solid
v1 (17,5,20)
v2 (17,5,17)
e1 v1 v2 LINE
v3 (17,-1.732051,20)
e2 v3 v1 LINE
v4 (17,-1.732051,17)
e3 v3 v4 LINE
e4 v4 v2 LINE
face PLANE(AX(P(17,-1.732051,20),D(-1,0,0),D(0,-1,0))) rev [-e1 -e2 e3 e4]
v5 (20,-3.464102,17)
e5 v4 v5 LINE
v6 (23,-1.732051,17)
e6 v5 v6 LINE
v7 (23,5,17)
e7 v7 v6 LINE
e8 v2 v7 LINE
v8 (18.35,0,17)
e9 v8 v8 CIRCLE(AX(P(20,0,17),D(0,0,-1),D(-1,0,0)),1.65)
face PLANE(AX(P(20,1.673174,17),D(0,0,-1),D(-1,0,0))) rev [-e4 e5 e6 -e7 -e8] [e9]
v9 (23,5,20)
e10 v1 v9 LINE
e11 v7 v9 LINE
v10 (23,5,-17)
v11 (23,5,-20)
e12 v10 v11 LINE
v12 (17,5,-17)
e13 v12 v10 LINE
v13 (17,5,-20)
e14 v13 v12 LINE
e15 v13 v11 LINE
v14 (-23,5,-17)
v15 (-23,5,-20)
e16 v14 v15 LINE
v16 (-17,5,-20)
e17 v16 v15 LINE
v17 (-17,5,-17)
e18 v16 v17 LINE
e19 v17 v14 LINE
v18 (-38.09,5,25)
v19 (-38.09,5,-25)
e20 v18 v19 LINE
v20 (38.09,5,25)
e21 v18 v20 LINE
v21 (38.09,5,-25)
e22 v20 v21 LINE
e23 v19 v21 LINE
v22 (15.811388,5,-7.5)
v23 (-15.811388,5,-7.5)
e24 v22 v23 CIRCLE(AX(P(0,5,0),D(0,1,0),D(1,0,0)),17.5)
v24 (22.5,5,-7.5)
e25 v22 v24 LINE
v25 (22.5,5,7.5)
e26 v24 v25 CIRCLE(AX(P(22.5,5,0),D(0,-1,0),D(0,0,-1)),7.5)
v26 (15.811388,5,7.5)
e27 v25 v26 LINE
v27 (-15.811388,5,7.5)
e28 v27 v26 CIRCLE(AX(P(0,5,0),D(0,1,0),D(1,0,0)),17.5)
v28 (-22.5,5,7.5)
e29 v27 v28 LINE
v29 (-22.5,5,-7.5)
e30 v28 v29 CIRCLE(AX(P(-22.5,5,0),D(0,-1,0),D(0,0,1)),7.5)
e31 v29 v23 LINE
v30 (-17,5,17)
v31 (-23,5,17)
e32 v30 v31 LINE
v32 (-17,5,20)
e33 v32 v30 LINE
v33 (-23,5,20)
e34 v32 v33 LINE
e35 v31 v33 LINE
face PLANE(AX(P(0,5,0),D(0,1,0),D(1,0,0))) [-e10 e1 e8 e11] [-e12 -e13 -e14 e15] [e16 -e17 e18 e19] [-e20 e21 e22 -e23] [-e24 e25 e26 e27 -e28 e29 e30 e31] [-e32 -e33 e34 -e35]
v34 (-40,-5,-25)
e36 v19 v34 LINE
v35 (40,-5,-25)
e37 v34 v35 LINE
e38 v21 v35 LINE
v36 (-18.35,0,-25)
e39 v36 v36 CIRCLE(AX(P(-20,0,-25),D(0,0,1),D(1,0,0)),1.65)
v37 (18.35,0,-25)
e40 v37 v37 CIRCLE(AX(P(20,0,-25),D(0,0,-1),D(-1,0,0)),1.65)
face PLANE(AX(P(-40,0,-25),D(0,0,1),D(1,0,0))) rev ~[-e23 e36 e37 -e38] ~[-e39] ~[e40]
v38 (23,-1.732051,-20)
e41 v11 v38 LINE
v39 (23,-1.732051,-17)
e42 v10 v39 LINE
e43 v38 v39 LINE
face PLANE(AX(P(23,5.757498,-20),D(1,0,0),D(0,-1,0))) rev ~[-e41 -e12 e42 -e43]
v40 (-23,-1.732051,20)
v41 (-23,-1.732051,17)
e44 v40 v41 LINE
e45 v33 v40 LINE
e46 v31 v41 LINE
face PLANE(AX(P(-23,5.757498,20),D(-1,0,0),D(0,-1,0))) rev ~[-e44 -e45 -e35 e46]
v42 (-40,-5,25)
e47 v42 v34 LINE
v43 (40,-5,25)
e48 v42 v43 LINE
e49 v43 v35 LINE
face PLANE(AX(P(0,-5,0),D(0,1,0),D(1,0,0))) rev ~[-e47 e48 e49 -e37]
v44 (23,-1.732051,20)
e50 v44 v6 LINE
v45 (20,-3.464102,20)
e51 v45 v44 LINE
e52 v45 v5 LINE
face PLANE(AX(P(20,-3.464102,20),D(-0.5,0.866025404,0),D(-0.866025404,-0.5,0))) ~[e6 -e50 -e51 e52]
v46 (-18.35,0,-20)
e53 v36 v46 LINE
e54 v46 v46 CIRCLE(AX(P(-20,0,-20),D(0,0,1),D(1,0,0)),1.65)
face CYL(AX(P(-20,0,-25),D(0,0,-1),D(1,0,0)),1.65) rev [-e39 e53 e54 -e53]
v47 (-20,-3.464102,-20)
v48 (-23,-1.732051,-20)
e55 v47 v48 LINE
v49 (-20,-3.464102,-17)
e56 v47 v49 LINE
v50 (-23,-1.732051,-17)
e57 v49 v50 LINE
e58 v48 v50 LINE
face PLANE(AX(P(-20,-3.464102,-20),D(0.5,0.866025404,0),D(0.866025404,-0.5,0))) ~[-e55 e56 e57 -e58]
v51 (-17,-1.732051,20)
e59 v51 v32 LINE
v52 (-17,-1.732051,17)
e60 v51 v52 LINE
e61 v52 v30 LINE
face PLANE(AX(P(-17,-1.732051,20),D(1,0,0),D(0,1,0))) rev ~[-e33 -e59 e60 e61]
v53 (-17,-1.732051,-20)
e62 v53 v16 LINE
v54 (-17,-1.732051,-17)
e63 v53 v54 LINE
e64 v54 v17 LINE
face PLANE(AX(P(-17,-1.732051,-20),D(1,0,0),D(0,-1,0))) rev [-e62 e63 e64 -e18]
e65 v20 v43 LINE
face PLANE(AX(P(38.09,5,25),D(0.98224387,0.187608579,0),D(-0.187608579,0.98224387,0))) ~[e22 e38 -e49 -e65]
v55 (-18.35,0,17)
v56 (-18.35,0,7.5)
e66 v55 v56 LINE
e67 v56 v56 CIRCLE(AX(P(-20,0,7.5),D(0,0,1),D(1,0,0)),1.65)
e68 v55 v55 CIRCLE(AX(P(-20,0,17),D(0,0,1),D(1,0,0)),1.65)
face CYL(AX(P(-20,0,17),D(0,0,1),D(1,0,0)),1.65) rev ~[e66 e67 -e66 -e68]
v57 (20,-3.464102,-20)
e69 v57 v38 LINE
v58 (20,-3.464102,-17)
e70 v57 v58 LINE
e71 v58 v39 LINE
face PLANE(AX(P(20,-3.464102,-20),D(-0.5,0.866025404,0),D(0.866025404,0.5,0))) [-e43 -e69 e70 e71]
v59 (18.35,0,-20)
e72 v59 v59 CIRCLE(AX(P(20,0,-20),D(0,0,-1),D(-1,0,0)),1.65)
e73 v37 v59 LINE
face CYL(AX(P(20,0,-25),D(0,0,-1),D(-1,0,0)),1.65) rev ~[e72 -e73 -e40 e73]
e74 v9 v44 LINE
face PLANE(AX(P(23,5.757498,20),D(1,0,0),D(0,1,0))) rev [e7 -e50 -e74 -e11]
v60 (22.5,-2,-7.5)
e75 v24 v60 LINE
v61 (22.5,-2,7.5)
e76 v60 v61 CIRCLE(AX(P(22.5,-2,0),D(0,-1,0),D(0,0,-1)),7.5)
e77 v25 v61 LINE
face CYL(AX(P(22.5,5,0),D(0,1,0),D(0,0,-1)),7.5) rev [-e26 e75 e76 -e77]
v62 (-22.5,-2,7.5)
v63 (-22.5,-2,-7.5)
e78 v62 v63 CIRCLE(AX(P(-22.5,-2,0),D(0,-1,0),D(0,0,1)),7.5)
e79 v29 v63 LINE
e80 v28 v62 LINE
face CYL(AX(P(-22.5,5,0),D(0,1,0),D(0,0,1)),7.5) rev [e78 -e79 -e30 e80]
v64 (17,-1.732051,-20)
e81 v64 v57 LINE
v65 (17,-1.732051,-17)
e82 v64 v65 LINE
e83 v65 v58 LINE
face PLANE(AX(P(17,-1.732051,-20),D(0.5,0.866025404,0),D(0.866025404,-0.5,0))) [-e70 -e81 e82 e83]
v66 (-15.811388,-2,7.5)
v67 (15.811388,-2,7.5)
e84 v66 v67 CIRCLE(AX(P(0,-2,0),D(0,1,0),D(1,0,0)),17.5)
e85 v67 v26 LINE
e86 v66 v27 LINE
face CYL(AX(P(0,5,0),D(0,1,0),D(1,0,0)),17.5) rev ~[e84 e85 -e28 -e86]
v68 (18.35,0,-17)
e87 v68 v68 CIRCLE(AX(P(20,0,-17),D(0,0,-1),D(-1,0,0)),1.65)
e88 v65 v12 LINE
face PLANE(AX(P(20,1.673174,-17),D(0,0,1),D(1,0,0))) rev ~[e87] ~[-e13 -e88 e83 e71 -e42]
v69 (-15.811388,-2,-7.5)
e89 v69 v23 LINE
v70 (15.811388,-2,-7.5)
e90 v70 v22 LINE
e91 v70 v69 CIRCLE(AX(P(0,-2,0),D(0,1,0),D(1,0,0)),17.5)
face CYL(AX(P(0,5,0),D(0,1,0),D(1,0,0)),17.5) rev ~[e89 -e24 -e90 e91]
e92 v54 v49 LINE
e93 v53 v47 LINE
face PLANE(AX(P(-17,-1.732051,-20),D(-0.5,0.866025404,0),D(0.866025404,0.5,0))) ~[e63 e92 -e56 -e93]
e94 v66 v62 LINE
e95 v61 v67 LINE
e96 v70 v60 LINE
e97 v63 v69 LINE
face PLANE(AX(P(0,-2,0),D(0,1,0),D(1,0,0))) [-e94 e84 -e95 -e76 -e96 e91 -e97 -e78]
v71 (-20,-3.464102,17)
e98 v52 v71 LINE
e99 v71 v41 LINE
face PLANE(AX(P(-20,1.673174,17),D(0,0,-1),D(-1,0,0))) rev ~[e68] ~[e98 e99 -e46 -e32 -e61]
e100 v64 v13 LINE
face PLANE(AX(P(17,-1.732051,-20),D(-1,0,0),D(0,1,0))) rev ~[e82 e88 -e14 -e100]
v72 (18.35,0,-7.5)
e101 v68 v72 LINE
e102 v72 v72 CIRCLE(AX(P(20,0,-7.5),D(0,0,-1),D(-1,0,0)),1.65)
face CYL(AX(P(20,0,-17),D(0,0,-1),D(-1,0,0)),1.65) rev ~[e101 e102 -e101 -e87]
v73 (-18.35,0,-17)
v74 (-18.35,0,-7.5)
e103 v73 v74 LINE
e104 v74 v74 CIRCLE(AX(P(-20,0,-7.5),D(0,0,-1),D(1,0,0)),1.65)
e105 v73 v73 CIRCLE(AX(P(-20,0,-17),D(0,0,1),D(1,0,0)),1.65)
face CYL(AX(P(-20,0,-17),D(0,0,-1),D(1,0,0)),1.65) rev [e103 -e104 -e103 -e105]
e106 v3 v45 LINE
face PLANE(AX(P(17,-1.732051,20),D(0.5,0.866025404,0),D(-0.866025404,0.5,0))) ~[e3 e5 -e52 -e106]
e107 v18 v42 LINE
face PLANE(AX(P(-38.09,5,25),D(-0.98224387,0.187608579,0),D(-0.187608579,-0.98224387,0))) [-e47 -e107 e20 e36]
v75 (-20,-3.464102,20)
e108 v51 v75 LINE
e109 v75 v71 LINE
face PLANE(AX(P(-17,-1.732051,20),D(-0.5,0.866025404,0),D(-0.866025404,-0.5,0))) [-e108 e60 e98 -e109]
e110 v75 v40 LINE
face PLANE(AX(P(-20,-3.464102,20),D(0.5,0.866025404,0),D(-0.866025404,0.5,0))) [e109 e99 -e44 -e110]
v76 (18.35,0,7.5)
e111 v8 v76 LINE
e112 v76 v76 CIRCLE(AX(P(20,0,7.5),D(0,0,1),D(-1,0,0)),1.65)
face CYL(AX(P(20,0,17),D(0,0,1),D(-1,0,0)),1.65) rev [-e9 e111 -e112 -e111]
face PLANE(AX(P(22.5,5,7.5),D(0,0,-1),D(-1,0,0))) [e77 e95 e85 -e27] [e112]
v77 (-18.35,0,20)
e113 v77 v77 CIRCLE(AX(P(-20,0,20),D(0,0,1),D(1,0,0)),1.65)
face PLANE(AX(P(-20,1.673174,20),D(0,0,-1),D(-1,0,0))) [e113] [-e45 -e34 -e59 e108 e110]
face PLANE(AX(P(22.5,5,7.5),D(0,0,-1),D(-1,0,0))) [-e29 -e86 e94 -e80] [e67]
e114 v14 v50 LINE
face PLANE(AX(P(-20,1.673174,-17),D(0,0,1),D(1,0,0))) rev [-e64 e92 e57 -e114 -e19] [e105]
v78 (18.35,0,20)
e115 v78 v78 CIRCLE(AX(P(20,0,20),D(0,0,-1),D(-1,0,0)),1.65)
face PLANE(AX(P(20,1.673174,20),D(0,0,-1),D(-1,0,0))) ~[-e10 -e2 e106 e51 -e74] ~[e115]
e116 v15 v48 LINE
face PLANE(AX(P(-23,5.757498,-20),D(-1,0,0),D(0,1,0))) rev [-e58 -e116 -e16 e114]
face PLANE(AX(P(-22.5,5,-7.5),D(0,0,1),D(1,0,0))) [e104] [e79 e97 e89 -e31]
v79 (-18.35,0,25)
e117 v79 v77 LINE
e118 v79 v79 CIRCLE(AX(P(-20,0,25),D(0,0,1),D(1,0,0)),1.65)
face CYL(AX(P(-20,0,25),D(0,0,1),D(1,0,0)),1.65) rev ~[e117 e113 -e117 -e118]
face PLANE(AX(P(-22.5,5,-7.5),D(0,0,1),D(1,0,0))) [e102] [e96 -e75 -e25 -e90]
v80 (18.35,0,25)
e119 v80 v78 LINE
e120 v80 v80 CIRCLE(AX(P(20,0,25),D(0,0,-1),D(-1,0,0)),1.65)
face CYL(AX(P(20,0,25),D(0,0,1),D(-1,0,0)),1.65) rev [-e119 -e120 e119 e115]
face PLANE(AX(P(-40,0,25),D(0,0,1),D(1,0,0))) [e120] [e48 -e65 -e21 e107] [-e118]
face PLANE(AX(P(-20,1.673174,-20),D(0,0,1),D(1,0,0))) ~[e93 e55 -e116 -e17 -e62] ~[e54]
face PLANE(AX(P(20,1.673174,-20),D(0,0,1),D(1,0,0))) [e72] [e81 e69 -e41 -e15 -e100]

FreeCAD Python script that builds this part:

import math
import FreeCAD as App
import Part
import Sketcher
Q = App.Units.Quantity


def add_polygon(sketch, points):
    """Adds a closed chain of lines whose ends are joined by coincident constraints."""
    first, n = sketch.GeometryCount, len(points)
    for a, b in zip(points, points[1:] + points[:1]):
        sketch.addGeometry(Part.LineSegment(App.Vector(*a, 0), App.Vector(*b, 0)), False)
    for i in range(n):
        sketch.addConstraint(Sketcher.Constraint("Coincident", first + i, 2, first + (i + 1) % n, 1))

doc = App.newDocument("Part")
body = doc.addObject("PartDesign::Body", "Body")

# Sketch on XZ plane
sketch1 = body.newObject("Sketcher::SketchObject", "Sketch")
sketch1.AttachmentSupport = (doc.getObject("XZ_Plane"), [""])
sketch1.MapMode = "FlatFace"
add_polygon(sketch1, [(-40, -25), (-40, 25), (40, 25), (40, -25)])  # lines 0-3
sketch1.addConstraint([
    Sketcher.Constraint("Vertical", 0),
    Sketcher.Constraint("Horizontal", 1),
    Sketcher.Constraint("Vertical", 2),
    Sketcher.Constraint("Horizontal", 3),
    Sketcher.Constraint("Symmetric", 0, 2, 2, 2, -1, 1),
    Sketcher.Constraint("DistanceX", 1, 1, 1, 2, Q("80 mm")),
    Sketcher.Constraint("DistanceY", 0, 1, 0, 2, Q("50 mm")),
])
pad1 = body.newObject("PartDesign::Pad", "Pad")
pad1.Profile = sketch1
pad1.Length = 10
pad1.Midplane = True

# Sketch on XY plane
sketch2 = body.newObject("Sketcher::SketchObject", "Sketch001")
sketch2.AttachmentSupport = (doc.getObject("XY_Plane"), [""])
sketch2.MapMode = "FlatFace"
sketch2.AttachmentOffset = App.Placement(App.Vector(0, 0, 25), App.Rotation())
sketch2.addGeometry(Part.Circle(App.Vector(-20, 0, 0), App.Vector(0, 0, 1), 1.6), False)
sketch2.addConstraint([
    Sketcher.Constraint("PointOnObject", 0, 3, -1),
    Sketcher.Constraint("Diameter", 0, Q("3.3 mm")),
    Sketcher.Constraint("DistanceX", 0, 3, -1, 1, Q("20 mm")),
])
pocket1 = body.newObject("PartDesign::Pocket", "Pocket")
pocket1.Profile = sketch2
pocket1.Length = 5

# Sketch on XY plane
sketch3 = body.newObject("Sketcher::SketchObject", "Sketch002")
sketch3.AttachmentSupport = (doc.getObject("XY_Plane"), [""])
sketch3.MapMode = "FlatFace"
sketch3.AttachmentOffset = App.Placement(App.Vector(0, 0, 20), App.Rotation())
add_polygon(sketch3, [(-23, 5.8), (-23, -1.7), (-20, -3.5), (-17, -1.7), (-17, 5.8)])  # lines 0-4
sketch3.addConstraint([
    Sketcher.Constraint("Vertical", 0),
    Sketcher.Constraint("Vertical", 3),
    Sketcher.Constraint("Horizontal", 4),
    Sketcher.Constraint("Horizontal", 0, 2, 2, 2),
    Sketcher.Constraint("Equal", 1, 2),
    Sketcher.Constraint("DistanceX", 4, 2, 4, 1, Q("6 mm")),
    Sketcher.Constraint("Angle", 1, Q("-30 deg")),
    Sketcher.Constraint("DistanceX", 0, 2, -1, 1, Q("23 mm")),
    Sketcher.Constraint("DistanceY", 0, 2, 0, 1, Q("7.489549 mm")),
    Sketcher.Constraint("DistanceY", 1, 2, -1, 1, Q("3.464102 mm")),
])
pocket2 = body.newObject("PartDesign::Pocket", "Pocket001")
pocket2.Profile = sketch3
pocket2.Length = 3

# Sketch on XY plane
sketch4 = body.newObject("Sketcher::SketchObject", "Sketch003")
sketch4.AttachmentSupport = (doc.getObject("XY_Plane"), [""])
sketch4.MapMode = "FlatFace"
sketch4.AttachmentOffset = App.Placement(App.Vector(0, 0, 17), App.Rotation())
sketch4.addGeometry(Part.Circle(App.Vector(-20, 0, 0), App.Vector(0, 0, 1), 1.6), False)
sketch4.addConstraint([
    Sketcher.Constraint("PointOnObject", 0, 3, -1),
    Sketcher.Constraint("Diameter", 0, Q("3.3 mm")),
    Sketcher.Constraint("DistanceX", 0, 3, -1, 1, Q("20 mm")),
])
pocket3 = body.newObject("PartDesign::Pocket", "Pocket002")
pocket3.Profile = sketch4
pocket3.Length = 10
doc.recompute()

mirrored = body.newObject("PartDesign::Mirrored", "Mirrored")
mirrored.Originals = [pocket1, pocket2, pocket3]
mirrored.MirrorPlane = (doc.getObject("YZ_Plane"), [""])
body.Tip = mirrored
doc.recompute()

mirrored2 = body.newObject("PartDesign::Mirrored", "Mirrored001")
mirrored2.Originals = [pocket1, pocket2, pocket3]
mirrored2.MirrorPlane = (doc.getObject("XY_Plane"), [""])
body.Tip = mirrored2

# Sketch on XY plane
sketch5 = body.newObject("Sketcher::SketchObject", "Sketch004")
sketch5.AttachmentSupport = (doc.getObject("XY_Plane"), [""])
sketch5.MapMode = "FlatFace"
sketch5.AttachmentOffset = App.Placement(App.Vector(0, 0, -25), App.Rotation())
sketch5.addGeometry(Part.Circle(App.Vector(20, 0, 0), App.Vector(0, 0, 1), 1.6), False)
sketch5.addConstraint([
    Sketcher.Constraint("PointOnObject", 0, 3, -1),
    Sketcher.Constraint("Diameter", 0, Q("3.3 mm")),
    Sketcher.Constraint("DistanceX", -1, 1, 0, 3, Q("20 mm")),
])
pocket4 = body.newObject("PartDesign::Pocket", "Pocket003")
pocket4.Profile = sketch5
pocket4.Length = 5
pocket4.Reversed = True

# Sketch on XY plane
sketch6 = body.newObject("Sketcher::SketchObject", "Sketch005")
sketch6.AttachmentSupport = (doc.getObject("XY_Plane"), [""])
sketch6.MapMode = "FlatFace"
sketch6.AttachmentOffset = App.Placement(App.Vector(0, 0, -20), App.Rotation())
add_polygon(sketch6, [(23, 5.8), (23, -1.7), (20, -3.5), (17, -1.7), (17, 5.8)])  # lines 0-4
sketch6.addConstraint([
    Sketcher.Constraint("Vertical", 0),
    Sketcher.Constraint("Vertical", 3),
    Sketcher.Constraint("Horizontal", 4),
    Sketcher.Constraint("Horizontal", 0, 2, 2, 2),
    Sketcher.Constraint("Equal", 1, 2),
    Sketcher.Constraint("DistanceX", 4, 1, 4, 2, Q("6 mm")),
    Sketcher.Constraint("Angle", 1, Q("-150 deg")),
    Sketcher.Constraint("DistanceX", -1, 1, 0, 2, Q("23 mm")),
    Sketcher.Constraint("DistanceY", 0, 2, 0, 1, Q("7.489549 mm")),
    Sketcher.Constraint("DistanceY", 1, 2, -1, 1, Q("3.464102 mm")),
])
pocket5 = body.newObject("PartDesign::Pocket", "Pocket004")
pocket5.Profile = sketch6
pocket5.Length = 3
pocket5.Reversed = True

# Sketch on XY plane
sketch7 = body.newObject("Sketcher::SketchObject", "Sketch006")
sketch7.AttachmentSupport = (doc.getObject("XY_Plane"), [""])
sketch7.MapMode = "FlatFace"
sketch7.AttachmentOffset = App.Placement(App.Vector(0, 0, -17), App.Rotation())
sketch7.addGeometry(Part.Circle(App.Vector(20, 0, 0), App.Vector(0, 0, 1), 1.6), False)
sketch7.addConstraint([
    Sketcher.Constraint("PointOnObject", 0, 3, -1),
    Sketcher.Constraint("Diameter", 0, Q("3.3 mm")),
    Sketcher.Constraint("DistanceX", -1, 1, 0, 3, Q("20 mm")),
])
pocket6 = body.newObject("PartDesign::Pocket", "Pocket005")
pocket6.Profile = sketch7
pocket6.Length = 10
pocket6.Reversed = True

# Sketch on XY plane
sketch8 = body.newObject("Sketcher::SketchObject", "Sketch007")
sketch8.AttachmentSupport = (doc.getObject("XY_Plane"), [""])
sketch8.MapMode = "FlatFace"
sketch8.AttachmentOffset = App.Placement(App.Vector(0, 0, 25), App.Rotation())
add_polygon(sketch8, [(-38.1, 5), (-40, 5), (-40, -5)])  # lines 0-2
sketch8.addConstraint([
    Sketcher.Constraint("Horizontal", 0),
    Sketcher.Constraint("Vertical", 1),
    Sketcher.Constraint("DistanceY", 1, 2, 1, 1, Q("10 mm")),
    Sketcher.Constraint("DistanceX", 0, 2, -1, 1, Q("40 mm")),
    Sketcher.Constraint("DistanceY", -1, 1, 0, 2, Q("5 mm")),
    Sketcher.Constraint("DistanceX", 0, 2, 0, 1, Q("1.91 mm")),
])
pocket7 = body.newObject("PartDesign::Pocket", "Pocket006")
pocket7.Profile = sketch8
pocket7.Type = "ThroughAll"
doc.recompute()

mirrored3 = body.newObject("PartDesign::Mirrored", "Mirrored002")
mirrored3.Originals = [pocket7]
mirrored3.MirrorPlane = (doc.getObject("YZ_Plane"), [""])
body.Tip = mirrored3

# Sketch on XZ plane
sketch9 = body.newObject("Sketcher::SketchObject", "Sketch008")
sketch9.AttachmentSupport = (doc.getObject("XZ_Plane"), [""])
sketch9.MapMode = "FlatFace"
sketch9.AttachmentOffset = App.Placement(App.Vector(0, 0, -5), App.Rotation())
sketch9.addGeometry(Part.Circle(App.Vector(0, 0, 0), App.Vector(0, 0, 1), 18), False)
sketch9.addConstraint([
    Sketcher.Constraint("Coincident", 0, 3, -1, 1),
    Sketcher.Constraint("Diameter", 0, Q("35 mm")),
])
pocket8 = body.newObject("PartDesign::Pocket", "Pocket007")
pocket8.Profile = sketch9
pocket8.Length = 7
pocket8.Reversed = True

# Sketch on XZ plane
sketch10 = body.newObject("Sketcher::SketchObject", "Sketch009")
sketch10.AttachmentSupport = (doc.getObject("XZ_Plane"), [""])
sketch10.MapMode = "FlatFace"
sketch10.AttachmentOffset = App.Placement(App.Vector(0, 0, -5), App.Rotation())
sketch10.addGeometry([
    Part.LineSegment(App.Vector(-22, 8, 0), App.Vector(22, 8, 0)),
    Part.ArcOfCircle(Part.Circle(App.Vector(22, 0, 0), App.Vector(0, 0, 1), 8), math.radians(-90), math.radians(90)),
    Part.LineSegment(App.Vector(22, -8, 0), App.Vector(-22, -8, 0)),
    Part.ArcOfCircle(Part.Circle(App.Vector(-22, 0, 0), App.Vector(0, 0, 1), 8), math.radians(90), math.radians(270)),
], False)
sketch10.addConstraint([
    Sketcher.Constraint("Tangent", 0, 2, 1, 2),
    Sketcher.Constraint("Tangent", 1, 1, 2, 1),
    Sketcher.Constraint("Tangent", 2, 2, 3, 2),
    Sketcher.Constraint("Tangent", 3, 1, 0, 1),
    Sketcher.Constraint("Horizontal", 0),
    Sketcher.Constraint("Horizontal", 2),
    Sketcher.Constraint("Symmetric", 1, 3, 3, 3, -1, 1),
    Sketcher.Constraint("Radius", 1, Q("7.5 mm")),
    Sketcher.Constraint("DistanceX", 0, 1, 0, 2, Q("45 mm")),
])
pocket9 = body.newObject("PartDesign::Pocket", "Pocket008")
pocket9.Profile = sketch10
pocket9.Length = 7
pocket9.Reversed = True

doc.recompute()
